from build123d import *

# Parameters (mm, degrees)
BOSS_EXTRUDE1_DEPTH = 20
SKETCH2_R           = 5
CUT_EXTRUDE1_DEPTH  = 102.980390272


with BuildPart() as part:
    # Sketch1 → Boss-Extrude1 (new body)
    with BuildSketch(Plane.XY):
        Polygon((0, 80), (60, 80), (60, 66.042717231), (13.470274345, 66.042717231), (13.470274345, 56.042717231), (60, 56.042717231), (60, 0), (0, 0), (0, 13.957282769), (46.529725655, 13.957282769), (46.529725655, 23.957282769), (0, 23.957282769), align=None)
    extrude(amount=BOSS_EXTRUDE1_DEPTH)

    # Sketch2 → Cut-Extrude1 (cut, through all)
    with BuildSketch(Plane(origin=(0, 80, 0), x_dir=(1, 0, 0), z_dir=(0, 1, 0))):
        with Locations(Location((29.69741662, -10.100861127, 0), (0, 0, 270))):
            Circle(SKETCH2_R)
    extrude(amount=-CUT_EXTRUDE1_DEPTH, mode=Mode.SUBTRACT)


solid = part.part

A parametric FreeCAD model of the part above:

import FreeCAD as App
import Part
import Sketcher

V = App.Vector
Q = App.Units.Quantity

doc = App.newDocument("Part")
body = doc.addObject("PartDesign::Body", "Body")

# Sketch on XY plane
sketch1 = body.newObject("Sketcher::SketchObject", "Sketch")
sketch1.AttachmentSupport = (doc.getObject("XY_Plane"), [""])
sketch1.MapMode = "FlatFace"
sketch1.addGeometry([
    Part.LineSegment(V(60, 80, 0), V(0, 80, 0)),  # 0
    Part.LineSegment(V(0, 80, 0), V(0, 24, 0)),  # 1
    Part.LineSegment(V(0, 24, 0), V(47, 24, 0)),  # 2
    Part.LineSegment(V(47, 24, 0), V(47, 14, 0)),  # 3
    Part.LineSegment(V(47, 14, 0), V(0, 14, 0)),  # 4
    Part.LineSegment(V(0, 14, 0), V(0, 0, 0)),  # 5
    Part.LineSegment(V(0, 0, 0), V(60, 0, 0)),  # 6
    Part.LineSegment(V(60, 0, 0), V(60, 56, 0)),  # 7
    Part.LineSegment(V(60, 56, 0), V(13, 56, 0)),  # 8
    Part.LineSegment(V(13, 56, 0), V(13, 66, 0)),  # 9
    Part.LineSegment(V(13, 66, 0), V(60, 66, 0)),  # 10
    Part.LineSegment(V(60, 66, 0), V(60, 80, 0)),  # 11
], False)
sketch1.addConstraint([
    Sketcher.Constraint("Coincident", 0, 2, 1, 1),
    Sketcher.Constraint("Coincident", 1, 2, 2, 1),
    Sketcher.Constraint("Coincident", 2, 2, 3, 1),
    Sketcher.Constraint("Coincident", 3, 2, 4, 1),
    Sketcher.Constraint("Coincident", 4, 2, 5, 1),
    Sketcher.Constraint("Coincident", 5, 2, 6, 1),
    Sketcher.Constraint("Coincident", 6, 2, 7, 1),
    Sketcher.Constraint("Coincident", 7, 2, 8, 1),
    Sketcher.Constraint("Coincident", 8, 2, 9, 1),
    Sketcher.Constraint("Coincident", 9, 2, 10, 1),
    Sketcher.Constraint("Coincident", 10, 2, 11, 1),
    Sketcher.Constraint("Coincident", 11, 2, 0, 1),
    Sketcher.Constraint("Horizontal", 0),
    Sketcher.Constraint("Vertical", 1),
    Sketcher.Constraint("Horizontal", 2),
    Sketcher.Constraint("Vertical", 3),
    Sketcher.Constraint("Horizontal", 4),
    Sketcher.Constraint("Vertical", 5),
    Sketcher.Constraint("Horizontal", 6),
    Sketcher.Constraint("Vertical", 7),
    Sketcher.Constraint("Horizontal", 8),
    Sketcher.Constraint("Vertical", 9),
    Sketcher.Constraint("Horizontal", 10),
    Sketcher.Constraint("Vertical", 11),
    Sketcher.Constraint("Coincident", 5, 2, -1, 1),
    Sketcher.Constraint("PointOnObject", 0, 2, -2),
    Sketcher.Constraint("Vertical", 7, 2, 10, 2),
    Sketcher.Constraint("Equal", 4, 8),
    Sketcher.Constraint("Equal", 1, 7),
    Sketcher.Constraint("Equal", 3, 9),
    Sketcher.Constraint("DistanceX", 0, 2, 0, 1, Q("60 mm")),
    Sketcher.Constraint("DistanceY", 3, 2, 3, 1, Q("10 mm")),
    Sketcher.Constraint("DistanceY", -1, 1, 0, 2, Q("80 mm")),
    Sketcher.Constraint("DistanceX", 2, 1, 2, 2, Q("46.529726 mm")),
    Sketcher.Constraint("DistanceY", 1, 2, 1, 1, Q("56.042717 mm")),
])
pad1 = body.newObject("PartDesign::Pad", "Pad")
pad1.Profile = sketch1
pad1.Length = 20

# Sketch on XZ plane
sketch2 = body.newObject("Sketcher::SketchObject", "Sketch001")
sketch2.AttachmentSupport = (doc.getObject("XZ_Plane"), [""])
sketch2.MapMode = "FlatFace"
sketch2.AttachmentOffset = App.Placement(V(0, 0, -80), App.Rotation())
sketch2.addGeometry(Part.Circle(V(30, 10, 0), V(0, 0, 1), 5), False)
sketch2.addConstraint([
    Sketcher.Constraint("Diameter", 0, Q("10 mm")),
    Sketcher.Constraint("DistanceY", -1, 1, 0, 3, Q("10.100861 mm")),
    Sketcher.Constraint("DistanceX", -1, 1, 0, 3, Q("29.697417 mm")),
])
pocket1 = body.newObject("PartDesign::Pocket", "Pocket")
pocket1.Profile = sketch2
pocket1.Type = "ThroughAll"
pocket1.Reversed = True

doc.recompute()
